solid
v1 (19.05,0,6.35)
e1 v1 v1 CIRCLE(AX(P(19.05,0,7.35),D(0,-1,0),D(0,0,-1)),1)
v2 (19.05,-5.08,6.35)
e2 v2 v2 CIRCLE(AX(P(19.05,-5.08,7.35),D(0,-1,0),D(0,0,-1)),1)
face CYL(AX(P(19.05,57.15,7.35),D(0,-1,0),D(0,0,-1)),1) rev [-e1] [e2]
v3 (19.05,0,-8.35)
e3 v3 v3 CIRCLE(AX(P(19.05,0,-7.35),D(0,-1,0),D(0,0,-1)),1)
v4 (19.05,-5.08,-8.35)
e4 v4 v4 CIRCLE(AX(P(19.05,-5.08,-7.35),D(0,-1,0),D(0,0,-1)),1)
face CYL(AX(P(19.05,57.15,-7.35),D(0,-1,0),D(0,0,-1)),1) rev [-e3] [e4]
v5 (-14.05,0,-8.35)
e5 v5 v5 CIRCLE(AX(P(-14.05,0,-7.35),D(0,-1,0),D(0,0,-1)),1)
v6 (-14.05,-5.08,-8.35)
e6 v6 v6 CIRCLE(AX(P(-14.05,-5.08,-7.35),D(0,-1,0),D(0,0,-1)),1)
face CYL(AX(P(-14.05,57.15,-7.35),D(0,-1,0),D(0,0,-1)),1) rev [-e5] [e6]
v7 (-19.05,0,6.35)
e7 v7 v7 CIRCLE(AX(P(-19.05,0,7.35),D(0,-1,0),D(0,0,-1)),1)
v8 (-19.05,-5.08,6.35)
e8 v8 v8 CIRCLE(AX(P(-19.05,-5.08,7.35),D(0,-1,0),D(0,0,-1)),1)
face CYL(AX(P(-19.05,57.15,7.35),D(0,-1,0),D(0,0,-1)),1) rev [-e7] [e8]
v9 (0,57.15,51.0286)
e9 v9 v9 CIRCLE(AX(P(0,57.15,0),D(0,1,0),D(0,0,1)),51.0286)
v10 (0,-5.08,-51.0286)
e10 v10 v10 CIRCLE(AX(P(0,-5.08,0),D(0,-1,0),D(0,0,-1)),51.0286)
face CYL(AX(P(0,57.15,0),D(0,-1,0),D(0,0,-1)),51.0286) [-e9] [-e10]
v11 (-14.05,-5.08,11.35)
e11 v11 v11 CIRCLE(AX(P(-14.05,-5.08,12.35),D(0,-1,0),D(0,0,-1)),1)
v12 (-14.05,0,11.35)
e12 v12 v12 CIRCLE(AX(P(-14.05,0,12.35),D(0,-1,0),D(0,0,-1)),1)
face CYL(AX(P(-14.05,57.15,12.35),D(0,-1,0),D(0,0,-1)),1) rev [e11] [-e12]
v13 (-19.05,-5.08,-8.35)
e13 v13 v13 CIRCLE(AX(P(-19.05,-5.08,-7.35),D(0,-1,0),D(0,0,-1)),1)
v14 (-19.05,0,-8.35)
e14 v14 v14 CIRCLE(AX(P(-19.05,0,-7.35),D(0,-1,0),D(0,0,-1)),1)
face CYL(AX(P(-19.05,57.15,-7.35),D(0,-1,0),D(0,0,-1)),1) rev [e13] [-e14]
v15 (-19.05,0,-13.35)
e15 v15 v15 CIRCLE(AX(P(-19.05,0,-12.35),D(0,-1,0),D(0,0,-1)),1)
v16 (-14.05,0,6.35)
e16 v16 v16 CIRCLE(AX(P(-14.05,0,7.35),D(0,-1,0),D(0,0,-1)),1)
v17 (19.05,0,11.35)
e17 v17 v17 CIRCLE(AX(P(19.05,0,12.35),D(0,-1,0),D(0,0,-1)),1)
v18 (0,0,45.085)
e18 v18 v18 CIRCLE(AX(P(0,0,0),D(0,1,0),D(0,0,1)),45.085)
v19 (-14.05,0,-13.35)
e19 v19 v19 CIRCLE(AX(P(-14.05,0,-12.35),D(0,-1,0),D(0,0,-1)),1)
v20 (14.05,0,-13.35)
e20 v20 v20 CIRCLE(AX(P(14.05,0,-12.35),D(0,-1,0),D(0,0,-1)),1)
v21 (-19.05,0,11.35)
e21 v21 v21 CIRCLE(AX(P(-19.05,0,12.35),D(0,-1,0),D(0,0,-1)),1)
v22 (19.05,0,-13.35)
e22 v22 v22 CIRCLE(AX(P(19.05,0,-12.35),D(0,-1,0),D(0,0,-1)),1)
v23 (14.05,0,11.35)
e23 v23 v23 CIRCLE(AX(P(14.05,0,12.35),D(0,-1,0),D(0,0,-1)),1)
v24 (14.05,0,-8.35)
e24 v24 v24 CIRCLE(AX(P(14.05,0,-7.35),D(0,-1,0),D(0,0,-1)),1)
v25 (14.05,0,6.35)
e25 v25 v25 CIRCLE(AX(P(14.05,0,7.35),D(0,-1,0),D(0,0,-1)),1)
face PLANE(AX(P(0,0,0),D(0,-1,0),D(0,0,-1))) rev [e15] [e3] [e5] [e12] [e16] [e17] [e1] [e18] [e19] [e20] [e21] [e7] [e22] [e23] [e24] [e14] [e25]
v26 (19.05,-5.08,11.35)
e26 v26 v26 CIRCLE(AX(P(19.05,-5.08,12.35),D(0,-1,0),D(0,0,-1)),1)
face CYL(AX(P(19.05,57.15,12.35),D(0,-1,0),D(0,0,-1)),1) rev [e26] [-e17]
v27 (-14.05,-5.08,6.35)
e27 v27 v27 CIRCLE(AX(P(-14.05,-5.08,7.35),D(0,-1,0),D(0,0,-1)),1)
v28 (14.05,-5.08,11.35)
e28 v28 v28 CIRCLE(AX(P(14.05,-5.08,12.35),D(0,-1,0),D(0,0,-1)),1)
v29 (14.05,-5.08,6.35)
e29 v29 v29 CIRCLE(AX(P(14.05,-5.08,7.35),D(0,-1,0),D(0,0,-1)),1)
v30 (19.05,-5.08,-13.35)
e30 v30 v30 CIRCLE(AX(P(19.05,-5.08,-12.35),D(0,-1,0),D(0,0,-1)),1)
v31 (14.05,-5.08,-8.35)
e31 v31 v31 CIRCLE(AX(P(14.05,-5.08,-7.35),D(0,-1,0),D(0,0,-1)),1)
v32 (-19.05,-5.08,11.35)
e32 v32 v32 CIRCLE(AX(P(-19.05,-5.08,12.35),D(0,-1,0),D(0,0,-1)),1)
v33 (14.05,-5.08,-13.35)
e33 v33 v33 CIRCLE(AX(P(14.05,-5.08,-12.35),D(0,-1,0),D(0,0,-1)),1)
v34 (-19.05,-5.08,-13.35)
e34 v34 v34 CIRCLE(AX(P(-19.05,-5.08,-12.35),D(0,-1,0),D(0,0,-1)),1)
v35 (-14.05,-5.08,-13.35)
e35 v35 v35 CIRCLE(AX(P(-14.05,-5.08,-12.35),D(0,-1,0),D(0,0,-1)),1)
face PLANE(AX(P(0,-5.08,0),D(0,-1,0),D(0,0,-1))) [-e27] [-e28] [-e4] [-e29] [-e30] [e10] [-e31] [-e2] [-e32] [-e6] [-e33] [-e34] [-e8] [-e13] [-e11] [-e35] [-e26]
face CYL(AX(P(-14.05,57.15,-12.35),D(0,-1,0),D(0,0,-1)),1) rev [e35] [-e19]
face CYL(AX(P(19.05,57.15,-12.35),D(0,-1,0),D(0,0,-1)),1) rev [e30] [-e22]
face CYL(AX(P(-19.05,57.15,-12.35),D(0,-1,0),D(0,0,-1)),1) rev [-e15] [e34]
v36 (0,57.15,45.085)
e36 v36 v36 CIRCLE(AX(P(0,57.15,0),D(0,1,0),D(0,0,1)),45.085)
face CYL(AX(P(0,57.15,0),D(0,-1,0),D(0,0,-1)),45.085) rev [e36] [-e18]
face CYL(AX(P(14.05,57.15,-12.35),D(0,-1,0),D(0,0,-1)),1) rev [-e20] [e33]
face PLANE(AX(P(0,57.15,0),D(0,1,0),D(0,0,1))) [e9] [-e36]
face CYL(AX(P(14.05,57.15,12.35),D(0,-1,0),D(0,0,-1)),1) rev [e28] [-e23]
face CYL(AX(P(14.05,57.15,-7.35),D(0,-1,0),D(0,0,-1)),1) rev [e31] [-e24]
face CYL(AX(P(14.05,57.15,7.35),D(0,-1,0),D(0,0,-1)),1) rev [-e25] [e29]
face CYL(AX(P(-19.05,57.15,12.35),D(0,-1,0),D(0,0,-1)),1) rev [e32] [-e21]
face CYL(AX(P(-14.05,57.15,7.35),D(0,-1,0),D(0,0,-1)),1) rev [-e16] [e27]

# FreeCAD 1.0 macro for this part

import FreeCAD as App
import Part
import Sketcher

V = App.Vector
Q = App.Units.Quantity

doc = App.newDocument("Part")
body = doc.addObject("PartDesign::Body", "Body")

sketch1 = doc.addObject("Sketcher::SketchObject", "Sketch")
body.addObject(sketch1)
sketch1.AttachmentSupport = (doc.XZ_Plane, [""])
sketch1.MapMode = "FlatFace"
sketch1.addGeometry([
    Part.Circle(V(0, 0, 0), V(0, 0, 1), 51),
    Part.Circle(V(0, 0, 0), V(0, 0, 1), 45),
], False)
sketch1.addConstraint([
    Sketcher.Constraint("Coincident", 0, 3, -1, 1),
    Sketcher.Constraint("Coincident", 1, 3, -1, 1),
    Sketcher.Constraint("Diameter", 1, Q("3.55 in")),
    Sketcher.Constraint("Diameter", 0, Q("4.018 in")),
])
pad1 = doc.addObject("PartDesign::Pad", "Pad")
body.addObject(pad1)
pad1.Profile = sketch1
pad1.Length = Q("2.25 in")
pad1.Reversed = True

sketch2 = doc.addObject("Sketcher::SketchObject", "Sketch001")
body.addObject(sketch2)
sketch2.AttachmentSupport = (doc.XZ_Plane, [""])
sketch2.MapMode = "FlatFace"
sketch2.addGeometry(Part.Circle(V(0, 0, 0), V(0, 0, 1), 51), False)
sketch2.addConstraint([
    Sketcher.Constraint("Coincident", 0, 3, -1, 1),
    Sketcher.Constraint("Diameter", 0, Q("4.018 in")),
])
pad2 = doc.addObject("PartDesign::Pad", "Pad001")
body.addObject(pad2)
pad2.Profile = sketch2
pad2.Length = Q("0.2 in")

sketch3 = doc.addObject("Sketcher::SketchObject", "Sketch002")
body.addObject(sketch3)
sketch3.AttachmentSupport = (doc.XZ_Plane, [""])
sketch3.MapMode = "FlatFace"
sketch3.AttachmentOffset = App.Placement(V(0, 0, 0.2 * 25.4), App.Rotation())
sketch3.addGeometry([
    Part.Circle(V(-14, 7.3, 0), V(0, 0, 1), 1),
    Part.Circle(V(-14, 12.3, 0), V(0, 0, 1), 1),
    Part.Circle(V(-19, 12.3, 0), V(0, 0, 1), 1),
    Part.Circle(V(-19, 7.3, 0), V(0, 0, 1), 1),
    Part.Circle(V(-19, -7.4, 0), V(0, 0, 1), 1),
    Part.Circle(V(-19, -12.4, 0), V(0, 0, 1), 1),
    Part.Circle(V(-14, -12.4, 0), V(0, 0, 1), 1),
    Part.Circle(V(14.1, -12.4, 0), V(0, 0, 1), 1),
    Part.Circle(V(14.1, -7.4, 0), V(0, 0, 1), 1),
    Part.Circle(V(19.1, -12.4, 0), V(0, 0, 1), 1),
    Part.Circle(V(19.1, -7.4, 0), V(0, 0, 1), 1),
    Part.Circle(V(19.1, 7.3, 0), V(0, 0, 1), 1),
    Part.Circle(V(14.1, 7.3, 0), V(0, 0, 1), 1),
    Part.Circle(V(14.1, 12.3, 0), V(0, 0, 1), 1),
    Part.Circle(V(19.1, 12.3, 0), V(0, 0, 1), 1),
    Part.Circle(V(-14, -7.4, 0), V(0, 0, 1), 1),
], False)
sketch3.addConstraint([
    Sketcher.Constraint("Equal", 0, 1),
    Sketcher.Constraint("Equal", 1, 2),
    Sketcher.Constraint("Equal", 2, 3),
    Sketcher.Constraint("Equal", 3, 4),
    Sketcher.Constraint("Equal", 4, 5),
    Sketcher.Constraint("Equal", 5, 6),
    Sketcher.Constraint("Equal", 6, 7),
    Sketcher.Constraint("Equal", 7, 8),
    Sketcher.Constraint("Equal", 8, 9),
    Sketcher.Constraint("Equal", 9, 10),
    Sketcher.Constraint("Equal", 10, 11),
    Sketcher.Constraint("Equal", 11, 12),
    Sketcher.Constraint("Equal", 12, 13),
    Sketcher.Constraint("Equal", 13, 14),
    Sketcher.Constraint("Equal", 14, 15),
    Sketcher.Constraint("Symmetric", 1, 3, 7, 3, -1, 1),
    Sketcher.Constraint("Symmetric", 0, 3, 8, 3, -1, 1),
    Sketcher.Constraint("Symmetric", 2, 3, 9, 3, -1, 1),
    Sketcher.Constraint("Symmetric", 3, 3, 10, 3, -1, 1),
    Sketcher.Constraint("Symmetric", 4, 3, 11, 3, -1, 1),
    Sketcher.Constraint("Symmetric", 6, 3, 13, 3, -1, 1),
    Sketcher.Constraint("Symmetric", 5, 3, 14, 3, -1, 1),
    Sketcher.Constraint("Symmetric", 12, 3, 15, 3, -1, 1),
    Sketcher.Constraint("Symmetric", 6, 3, 7, 3, -2),
    Sketcher.Constraint("Symmetric", 5, 3, 9, 3, -2),
    Sketcher.Constraint("Symmetric", 4, 3, 10, 3, -2),
    Sketcher.Constraint("Symmetric", 0, 3, 12, 3, -2),
    Sketcher.Constraint("Horizontal", 1, 3, 2, 3),
    Sketcher.Constraint("Horizontal", 0, 3, 3, 3),
    Sketcher.Constraint("Vertical", 0, 3, 1, 3),
    Sketcher.Constraint("Vertical", 2, 3, 3, 3),
    Sketcher.Constraint("DistanceX", 5, 3, 9, 3, Q("1.5 in")),
    Sketcher.Constraint("Diameter", 0, 2.0),
    Sketcher.Constraint("DistanceX", 0, 3, -1, 1, 14.05),
    Sketcher.Constraint("DistanceY", -1, 1, 0, 3, 7.35),
    Sketcher.Constraint("DistanceY", -1, 1, 1, 3, 12.35),
])
pocket1 = doc.addObject("PartDesign::Pocket", "Pocket")
body.addObject(pocket1)
pocket1.Profile = sketch3
pocket1.Type = "ThroughAll"
pocket1.Midplane = True

doc.recompute()
